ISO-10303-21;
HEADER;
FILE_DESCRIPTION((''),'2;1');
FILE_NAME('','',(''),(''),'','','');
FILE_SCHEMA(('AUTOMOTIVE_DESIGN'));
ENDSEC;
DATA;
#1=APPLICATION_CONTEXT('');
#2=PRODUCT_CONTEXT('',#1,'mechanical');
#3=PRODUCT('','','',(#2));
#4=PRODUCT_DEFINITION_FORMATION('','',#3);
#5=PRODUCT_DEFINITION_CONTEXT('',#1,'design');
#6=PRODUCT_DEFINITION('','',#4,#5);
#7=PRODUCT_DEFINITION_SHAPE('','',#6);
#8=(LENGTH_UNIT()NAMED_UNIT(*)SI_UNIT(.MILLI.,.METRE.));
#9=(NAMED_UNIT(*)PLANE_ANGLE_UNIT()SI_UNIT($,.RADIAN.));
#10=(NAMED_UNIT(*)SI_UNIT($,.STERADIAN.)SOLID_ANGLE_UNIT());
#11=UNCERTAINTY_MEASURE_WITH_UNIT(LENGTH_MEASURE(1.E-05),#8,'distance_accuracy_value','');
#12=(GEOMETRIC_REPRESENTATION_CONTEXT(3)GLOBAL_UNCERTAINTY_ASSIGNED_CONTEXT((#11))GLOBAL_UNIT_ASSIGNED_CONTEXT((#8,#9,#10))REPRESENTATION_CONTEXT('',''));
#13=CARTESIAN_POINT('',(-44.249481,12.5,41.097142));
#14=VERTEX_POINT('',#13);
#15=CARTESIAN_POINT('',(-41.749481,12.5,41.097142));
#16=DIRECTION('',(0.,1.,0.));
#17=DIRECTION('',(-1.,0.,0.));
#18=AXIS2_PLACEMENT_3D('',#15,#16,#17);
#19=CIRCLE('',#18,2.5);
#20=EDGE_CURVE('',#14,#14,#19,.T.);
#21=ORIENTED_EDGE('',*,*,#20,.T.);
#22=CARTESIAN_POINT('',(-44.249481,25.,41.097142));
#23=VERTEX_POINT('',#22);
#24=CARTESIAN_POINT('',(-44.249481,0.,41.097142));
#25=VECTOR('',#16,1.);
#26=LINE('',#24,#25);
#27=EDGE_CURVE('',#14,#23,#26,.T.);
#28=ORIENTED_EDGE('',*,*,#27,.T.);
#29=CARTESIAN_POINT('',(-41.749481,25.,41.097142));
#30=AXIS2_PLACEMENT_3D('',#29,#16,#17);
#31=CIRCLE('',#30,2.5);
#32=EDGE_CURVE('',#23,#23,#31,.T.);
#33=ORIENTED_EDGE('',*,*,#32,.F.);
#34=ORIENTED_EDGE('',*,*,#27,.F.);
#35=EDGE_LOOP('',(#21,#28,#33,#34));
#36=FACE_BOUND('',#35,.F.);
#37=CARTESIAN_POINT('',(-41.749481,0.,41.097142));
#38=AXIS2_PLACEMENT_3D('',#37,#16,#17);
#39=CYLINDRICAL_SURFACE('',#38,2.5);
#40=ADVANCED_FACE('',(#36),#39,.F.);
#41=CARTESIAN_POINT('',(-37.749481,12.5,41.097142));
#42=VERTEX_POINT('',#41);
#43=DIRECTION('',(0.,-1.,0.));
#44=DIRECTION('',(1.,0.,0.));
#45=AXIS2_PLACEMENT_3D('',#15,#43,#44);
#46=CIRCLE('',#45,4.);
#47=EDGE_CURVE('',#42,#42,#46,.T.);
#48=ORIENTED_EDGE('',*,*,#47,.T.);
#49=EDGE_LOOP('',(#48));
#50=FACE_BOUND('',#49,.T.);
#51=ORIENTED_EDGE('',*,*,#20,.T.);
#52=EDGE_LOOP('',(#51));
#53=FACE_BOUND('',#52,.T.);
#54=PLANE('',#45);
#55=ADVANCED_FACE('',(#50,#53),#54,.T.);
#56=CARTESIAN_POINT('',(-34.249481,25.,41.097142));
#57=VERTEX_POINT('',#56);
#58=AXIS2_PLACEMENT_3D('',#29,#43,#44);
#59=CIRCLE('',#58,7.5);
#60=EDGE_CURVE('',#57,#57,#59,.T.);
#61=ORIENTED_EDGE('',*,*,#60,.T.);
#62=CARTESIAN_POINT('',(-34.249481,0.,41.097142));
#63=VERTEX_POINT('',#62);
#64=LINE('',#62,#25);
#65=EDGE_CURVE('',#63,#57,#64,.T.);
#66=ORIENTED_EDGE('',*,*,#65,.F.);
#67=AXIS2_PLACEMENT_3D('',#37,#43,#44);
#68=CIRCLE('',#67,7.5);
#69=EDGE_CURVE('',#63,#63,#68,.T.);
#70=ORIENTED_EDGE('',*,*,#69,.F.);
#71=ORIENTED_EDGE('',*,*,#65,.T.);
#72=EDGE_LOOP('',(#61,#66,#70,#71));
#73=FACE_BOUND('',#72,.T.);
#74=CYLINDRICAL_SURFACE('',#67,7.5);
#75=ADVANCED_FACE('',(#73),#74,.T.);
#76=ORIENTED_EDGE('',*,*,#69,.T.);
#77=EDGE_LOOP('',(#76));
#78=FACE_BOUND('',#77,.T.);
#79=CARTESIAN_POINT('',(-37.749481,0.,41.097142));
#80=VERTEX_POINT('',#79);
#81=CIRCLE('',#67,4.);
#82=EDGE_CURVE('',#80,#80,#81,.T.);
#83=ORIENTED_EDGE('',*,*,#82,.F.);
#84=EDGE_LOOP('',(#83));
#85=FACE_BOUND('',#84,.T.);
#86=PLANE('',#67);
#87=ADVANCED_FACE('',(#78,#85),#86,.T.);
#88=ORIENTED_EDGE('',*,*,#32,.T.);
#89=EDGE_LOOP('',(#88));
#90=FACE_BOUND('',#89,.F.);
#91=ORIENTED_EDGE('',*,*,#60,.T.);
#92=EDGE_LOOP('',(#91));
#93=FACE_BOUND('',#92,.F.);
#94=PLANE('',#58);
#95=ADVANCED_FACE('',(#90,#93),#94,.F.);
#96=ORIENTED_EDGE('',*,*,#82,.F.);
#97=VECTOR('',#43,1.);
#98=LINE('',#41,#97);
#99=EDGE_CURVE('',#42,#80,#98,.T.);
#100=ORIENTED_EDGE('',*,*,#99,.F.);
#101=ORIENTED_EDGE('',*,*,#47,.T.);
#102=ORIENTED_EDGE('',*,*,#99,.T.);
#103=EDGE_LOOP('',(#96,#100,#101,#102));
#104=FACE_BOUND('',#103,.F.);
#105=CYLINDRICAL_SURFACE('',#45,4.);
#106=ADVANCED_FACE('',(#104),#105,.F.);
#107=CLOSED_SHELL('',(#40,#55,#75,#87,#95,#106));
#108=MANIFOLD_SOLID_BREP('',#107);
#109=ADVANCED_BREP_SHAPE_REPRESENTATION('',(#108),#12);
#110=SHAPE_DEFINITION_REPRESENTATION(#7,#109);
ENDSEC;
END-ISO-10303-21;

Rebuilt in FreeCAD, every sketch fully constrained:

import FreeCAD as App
import Part
import Sketcher

V = App.Vector
Q = App.Units.Quantity

doc = App.newDocument("Part")
body = doc.addObject("PartDesign::Body", "Body")

# Sketch on XZ plane
sketch1 = doc.addObject("Sketcher::SketchObject", "Sketch")
body.addObject(sketch1)
sketch1.AttachmentSupport = (doc.XZ_Plane, [""])
sketch1.MapMode = "FlatFace"
sketch1.addGeometry(Part.Circle(V(-41.749481, 41.097142, 0), V(0, 0, 1), 7.5), False)
sketch1.addConstraint(Sketcher.Constraint("Diameter", 0, Q("15 mm")))
sketch1.addConstraint(Sketcher.Constraint("DistanceX", 0, 3, -1, 1, Q("41.749481 mm")))
sketch1.addConstraint(Sketcher.Constraint("DistanceY", -1, 1, 0, 3, Q("41.097142 mm")))
pad1 = doc.addObject("PartDesign::Pad", "Pad")
body.addObject(pad1)
pad1.Profile = sketch1
pad1.Length = 25
pad1.Reversed = True

# Sketch on XZ plane
sketch2 = doc.addObject("Sketcher::SketchObject", "Sketch001")
body.addObject(sketch2)
sketch2.AttachmentSupport = (doc.XZ_Plane, [""])
sketch2.MapMode = "FlatFace"
sketch2.addGeometry(Part.Circle(V(-41.749481, 41.097142, 0), V(0, 0, 1), 2.5), False)
sketch2.addConstraint(Sketcher.Constraint("Diameter", 0, Q("5 mm")))
sketch2.addConstraint(Sketcher.Constraint("DistanceX", 0, 3, -1, 1, Q("41.749481 mm")))
sketch2.addConstraint(Sketcher.Constraint("DistanceY", -1, 1, 0, 3, Q("41.097142 mm")))
doc.recompute()
hole = doc.addObject("PartDesign::Hole", "Hole")
body.addObject(hole)
hole.Profile = sketch2
hole.ThreadType = "None"
hole.Diameter = 5
hole.DepthType = "Dimension"
hole.Depth = 25
hole.DrillPoint = "Flat"
hole.HoleCutType = "Counterbore"
hole.HoleCutDiameter = 8
hole.HoleCutDepth = 12.5

doc.recompute()
